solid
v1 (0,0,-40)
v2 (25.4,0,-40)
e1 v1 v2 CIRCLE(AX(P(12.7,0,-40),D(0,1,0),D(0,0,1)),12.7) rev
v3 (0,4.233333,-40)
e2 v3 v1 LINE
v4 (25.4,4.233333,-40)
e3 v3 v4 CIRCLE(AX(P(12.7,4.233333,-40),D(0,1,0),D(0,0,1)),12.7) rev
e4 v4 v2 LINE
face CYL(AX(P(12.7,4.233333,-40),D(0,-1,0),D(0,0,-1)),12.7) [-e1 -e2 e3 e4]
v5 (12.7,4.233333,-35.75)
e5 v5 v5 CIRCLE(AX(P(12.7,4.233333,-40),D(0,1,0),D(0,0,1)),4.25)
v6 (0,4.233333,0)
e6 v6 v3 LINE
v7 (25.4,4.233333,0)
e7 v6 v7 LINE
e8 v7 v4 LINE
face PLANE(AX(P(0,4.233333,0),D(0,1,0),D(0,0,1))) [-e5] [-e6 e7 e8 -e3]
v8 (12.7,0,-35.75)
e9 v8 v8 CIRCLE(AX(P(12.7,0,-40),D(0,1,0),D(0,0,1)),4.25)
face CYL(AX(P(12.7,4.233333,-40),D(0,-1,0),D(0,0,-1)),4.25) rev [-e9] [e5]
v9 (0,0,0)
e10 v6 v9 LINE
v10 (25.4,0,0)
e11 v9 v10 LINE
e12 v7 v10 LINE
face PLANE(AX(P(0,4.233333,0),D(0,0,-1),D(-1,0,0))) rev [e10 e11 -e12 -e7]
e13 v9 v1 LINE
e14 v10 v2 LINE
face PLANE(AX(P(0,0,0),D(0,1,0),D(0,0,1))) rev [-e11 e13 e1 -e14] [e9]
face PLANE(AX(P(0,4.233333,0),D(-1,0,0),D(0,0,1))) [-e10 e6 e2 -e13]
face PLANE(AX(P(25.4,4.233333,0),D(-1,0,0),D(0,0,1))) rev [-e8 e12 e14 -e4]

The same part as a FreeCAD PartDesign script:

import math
import FreeCAD as App
import Part
import Sketcher

V = App.Vector

doc = App.newDocument("Part")
body = doc.addObject("PartDesign::Body", "Body")

# Sketch on XZ plane
sketch1 = body.newObject("Sketcher::SketchObject", "Sketch")
sketch1.AttachmentSupport = (doc.getObject("XZ_Plane"), [""])
sketch1.MapMode = "FlatFace"
sketch1.addGeometry([
    Part.LineSegment(V(0, 0, 0), V(25.4, 0, 0)),  # 0
    Part.LineSegment(V(25.4, 0, 0), V(25.4, -40, 0)),  # 1
    Part.ArcOfCircle(Part.Circle(V(12.7, -40, 0), V(0, 0, 1), 12.7), math.radians(180), math.radians(360)),  # 2
    Part.LineSegment(V(0, -40, 0), V(0, 0, 0)),  # 3
    Part.Circle(V(12.7, -40, 0), V(0, 0, 1), 4.2),  # 4
], False)
sketch1.addConstraint([
    Sketcher.Constraint("Coincident", 0, 2, 1, 1),
    Sketcher.Constraint("Tangent", 1, 2, 2, 2),
    Sketcher.Constraint("Tangent", 2, 1, 3, 1),
    Sketcher.Constraint("Coincident", 3, 2, 0, 1),
    Sketcher.Constraint("Horizontal", 0),
    Sketcher.Constraint("Vertical", 1),
    Sketcher.Constraint("Vertical", 3),
    Sketcher.Constraint("Coincident", 3, 2, -1, 1),
    Sketcher.Constraint("Coincident", 4, 3, 2, 3),
    Sketcher.Constraint("Diameter", 4, 8.5),
    Sketcher.Constraint("Radius", 2, 12.7),
    Sketcher.Constraint("DistanceY", 1, 2, 1, 1, 40.0),
])
pad1 = body.newObject("PartDesign::Pad", "Pad")
pad1.Profile = sketch1
pad1.Length = 4.233333
pad1.Reversed = True

doc.recompute()
